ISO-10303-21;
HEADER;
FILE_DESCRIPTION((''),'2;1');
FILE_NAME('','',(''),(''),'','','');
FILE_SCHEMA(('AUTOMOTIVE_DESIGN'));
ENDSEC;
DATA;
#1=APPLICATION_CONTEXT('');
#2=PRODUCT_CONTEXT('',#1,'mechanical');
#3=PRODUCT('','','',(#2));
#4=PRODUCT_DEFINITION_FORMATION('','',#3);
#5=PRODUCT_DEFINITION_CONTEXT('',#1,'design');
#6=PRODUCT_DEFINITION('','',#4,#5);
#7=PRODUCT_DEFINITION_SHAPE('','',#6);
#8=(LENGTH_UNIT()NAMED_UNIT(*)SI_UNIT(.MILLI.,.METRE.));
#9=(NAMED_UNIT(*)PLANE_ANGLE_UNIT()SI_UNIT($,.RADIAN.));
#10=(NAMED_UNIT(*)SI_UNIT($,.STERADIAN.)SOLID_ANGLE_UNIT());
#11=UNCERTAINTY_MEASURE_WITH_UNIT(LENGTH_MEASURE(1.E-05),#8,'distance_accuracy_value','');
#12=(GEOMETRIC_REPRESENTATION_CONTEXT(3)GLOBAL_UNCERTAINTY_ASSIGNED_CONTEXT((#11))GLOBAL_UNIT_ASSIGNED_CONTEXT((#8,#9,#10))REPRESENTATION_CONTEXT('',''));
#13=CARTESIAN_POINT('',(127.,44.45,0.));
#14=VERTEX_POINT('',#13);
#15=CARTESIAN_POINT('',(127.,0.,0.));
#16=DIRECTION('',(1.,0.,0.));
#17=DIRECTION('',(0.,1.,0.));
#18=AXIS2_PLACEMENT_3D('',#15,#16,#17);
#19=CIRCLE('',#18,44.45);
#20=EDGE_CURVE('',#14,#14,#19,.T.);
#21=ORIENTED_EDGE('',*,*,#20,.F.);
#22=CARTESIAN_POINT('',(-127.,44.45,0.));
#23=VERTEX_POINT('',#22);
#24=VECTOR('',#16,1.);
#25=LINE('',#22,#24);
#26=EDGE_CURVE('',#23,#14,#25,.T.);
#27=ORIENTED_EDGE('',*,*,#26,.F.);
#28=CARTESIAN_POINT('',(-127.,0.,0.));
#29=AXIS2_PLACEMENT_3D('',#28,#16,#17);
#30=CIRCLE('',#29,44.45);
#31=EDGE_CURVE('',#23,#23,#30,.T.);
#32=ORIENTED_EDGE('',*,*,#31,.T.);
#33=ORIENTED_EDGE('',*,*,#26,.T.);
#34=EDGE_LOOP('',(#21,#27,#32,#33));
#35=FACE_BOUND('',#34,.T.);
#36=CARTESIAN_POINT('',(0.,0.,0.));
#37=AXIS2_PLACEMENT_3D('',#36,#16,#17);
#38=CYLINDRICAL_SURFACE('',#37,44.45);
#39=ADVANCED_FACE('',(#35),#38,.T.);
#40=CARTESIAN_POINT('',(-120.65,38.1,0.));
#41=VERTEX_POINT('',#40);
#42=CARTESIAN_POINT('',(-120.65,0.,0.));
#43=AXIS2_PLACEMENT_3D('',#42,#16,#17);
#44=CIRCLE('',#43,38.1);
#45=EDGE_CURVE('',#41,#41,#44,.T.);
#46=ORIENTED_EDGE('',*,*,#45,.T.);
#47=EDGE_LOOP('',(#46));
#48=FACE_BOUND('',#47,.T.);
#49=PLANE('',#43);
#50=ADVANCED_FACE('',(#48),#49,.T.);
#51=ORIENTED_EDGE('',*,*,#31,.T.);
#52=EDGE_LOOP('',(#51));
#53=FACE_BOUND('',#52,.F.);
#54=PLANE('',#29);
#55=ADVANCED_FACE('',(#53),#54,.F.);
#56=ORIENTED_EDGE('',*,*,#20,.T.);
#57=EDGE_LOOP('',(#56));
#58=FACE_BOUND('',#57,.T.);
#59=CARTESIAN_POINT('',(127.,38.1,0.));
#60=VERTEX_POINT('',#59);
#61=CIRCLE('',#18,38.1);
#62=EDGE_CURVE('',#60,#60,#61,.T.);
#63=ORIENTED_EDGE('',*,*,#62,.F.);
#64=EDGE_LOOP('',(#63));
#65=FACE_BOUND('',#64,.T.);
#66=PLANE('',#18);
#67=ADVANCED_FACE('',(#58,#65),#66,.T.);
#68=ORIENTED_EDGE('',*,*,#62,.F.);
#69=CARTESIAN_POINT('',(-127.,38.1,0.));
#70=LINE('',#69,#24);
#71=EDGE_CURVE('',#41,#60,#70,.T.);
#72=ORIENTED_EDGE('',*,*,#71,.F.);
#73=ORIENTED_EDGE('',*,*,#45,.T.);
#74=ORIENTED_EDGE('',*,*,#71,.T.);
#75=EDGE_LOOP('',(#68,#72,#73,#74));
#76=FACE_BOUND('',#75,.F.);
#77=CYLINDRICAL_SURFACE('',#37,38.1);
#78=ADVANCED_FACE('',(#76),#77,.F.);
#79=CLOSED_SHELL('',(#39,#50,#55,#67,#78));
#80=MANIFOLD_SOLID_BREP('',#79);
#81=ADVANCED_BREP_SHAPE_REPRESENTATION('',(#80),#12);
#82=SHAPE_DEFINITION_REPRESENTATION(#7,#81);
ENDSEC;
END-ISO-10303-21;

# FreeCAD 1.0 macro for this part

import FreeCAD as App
import Part
import Sketcher

V = App.Vector
Q = App.Units.Quantity


def faces_at(feature, points):
    """Names of the faces that lie closest to the given points."""
    faces = feature.Shape.Faces
    near = lambda p: min(range(len(faces)), key=lambda i: faces[i].distToShape(Part.Vertex(*p))[0])
    return sorted({f"Face{near(p) + 1}" for p in points})

doc = App.newDocument("Part")
params = doc.addObject("Spreadsheet::Sheet", "Params")
for row, (alias, value) in enumerate([
    ("sketch1_diameter", "3.5 in"),
    ("pad1_length", "5 in"),
    ("pad1_length2", "5 in"),
    ("thickness_wall", "0.25 in"),
], start=1):
    params.set(f"A{row}", alias)
    params.set(f"B{row}", "=" + value)
    params.setAlias(f"B{row}", alias)

body = doc.addObject("PartDesign::Body", "Body")

sketch1 = body.newObject("Sketcher::SketchObject", "Sketch")
sketch1.AttachmentSupport = (doc.getObject("YZ_Plane"), [""])
sketch1.MapMode = "FlatFace"
sketch1.addGeometry(Part.Circle(V(0, 0, 0), V(0, 0, 1), 44), False)
sketch1.addConstraint(Sketcher.Constraint("Coincident", 0, 3, -1, 1))
sketch1.addConstraint(Sketcher.Constraint("Diameter", 0, Q("3.5 in")))
sketch1.setExpression("Constraints[1]", "Params.sketch1_diameter")
pad1 = body.newObject("PartDesign::Pad", "Pad")
pad1.Profile = sketch1
pad1.Type = "TwoLengths"
pad1.setExpression("Length", "Params.pad1_length")
pad1.setExpression("Length2", "Params.pad1_length2")
doc.recompute()

thickness = body.newObject("PartDesign::Thickness", "Thickness")
thickness.Base = (pad1, faces_at(pad1, [(127, 0, 0)]))
thickness.setExpression("Value", "Params.thickness_wall")
thickness.Reversed = True
thickness.Join = "Arc"

doc.recompute()
